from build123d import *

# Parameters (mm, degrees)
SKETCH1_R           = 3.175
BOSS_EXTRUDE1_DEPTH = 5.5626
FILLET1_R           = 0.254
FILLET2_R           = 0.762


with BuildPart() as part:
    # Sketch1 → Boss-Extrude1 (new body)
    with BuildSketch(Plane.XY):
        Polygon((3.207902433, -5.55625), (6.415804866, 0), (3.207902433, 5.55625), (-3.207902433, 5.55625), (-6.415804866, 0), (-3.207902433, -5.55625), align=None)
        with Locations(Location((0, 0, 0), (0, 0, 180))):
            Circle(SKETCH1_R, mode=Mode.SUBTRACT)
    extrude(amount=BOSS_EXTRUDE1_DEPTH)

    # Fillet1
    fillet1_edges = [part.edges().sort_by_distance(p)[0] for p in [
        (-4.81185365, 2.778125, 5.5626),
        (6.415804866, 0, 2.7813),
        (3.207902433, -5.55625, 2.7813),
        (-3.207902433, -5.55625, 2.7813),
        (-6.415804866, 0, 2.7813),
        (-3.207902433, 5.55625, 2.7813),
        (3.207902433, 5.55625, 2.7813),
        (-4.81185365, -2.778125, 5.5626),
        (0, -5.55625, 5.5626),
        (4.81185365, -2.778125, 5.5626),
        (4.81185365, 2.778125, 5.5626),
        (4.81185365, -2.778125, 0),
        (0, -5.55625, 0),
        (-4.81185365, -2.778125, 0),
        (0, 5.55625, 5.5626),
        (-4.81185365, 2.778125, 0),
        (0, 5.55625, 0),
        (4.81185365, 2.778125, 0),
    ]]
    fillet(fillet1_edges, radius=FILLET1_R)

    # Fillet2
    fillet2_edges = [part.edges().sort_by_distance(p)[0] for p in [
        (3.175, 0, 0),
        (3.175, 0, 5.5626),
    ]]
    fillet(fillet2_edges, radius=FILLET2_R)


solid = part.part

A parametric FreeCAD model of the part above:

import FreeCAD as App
import Part
import Sketcher
Q = App.Units.Quantity


def edges_at(feature, points):
    """Names of the edges that pass closest to the given points."""
    edges = feature.Shape.Edges
    near = lambda p: min(range(len(edges)), key=lambda i: edges[i].distToShape(Part.Vertex(*p))[0])
    return sorted({f"Edge{near(p) + 1}" for p in points})

doc = App.newDocument("Part")
body = doc.addObject("PartDesign::Body", "Body")

# Sketch on XY plane
sketch1 = doc.addObject("Sketcher::SketchObject", "Sketch")
body.addObject(sketch1)
sketch1.AttachmentSupport = (doc.XY_Plane, [""])
sketch1.MapMode = "FlatFace"
sketch1.addGeometry(Part.LineSegment(App.Vector(3.207902, -5.55625, 0), App.Vector(6.415805, 0, 0)), False)
sketch1.addGeometry(Part.LineSegment(App.Vector(6.415805, 0, 0), App.Vector(3.207902, 5.55625, 0)), False)
sketch1.addGeometry(Part.LineSegment(App.Vector(3.207902, 5.55625, 0), App.Vector(-3.207902, 5.55625, 0)), False)
sketch1.addGeometry(Part.LineSegment(App.Vector(-3.207902, 5.55625, 0), App.Vector(-6.415805, 0, 0)), False)
sketch1.addGeometry(Part.LineSegment(App.Vector(-6.415805, 0, 0), App.Vector(-3.207902, -5.55625, 0)), False)
sketch1.addGeometry(Part.LineSegment(App.Vector(-3.207902, -5.55625, 0), App.Vector(3.207902, -5.55625, 0)), False)
sketch1.addGeometry(Part.Circle(App.Vector(0, 0, 0), App.Vector(0, 0, 1), 3.175), False)
sketch1.addConstraint(Sketcher.Constraint("Coincident", 0, 2, 1, 1))
sketch1.addConstraint(Sketcher.Constraint("Coincident", 1, 2, 2, 1))
sketch1.addConstraint(Sketcher.Constraint("Coincident", 2, 2, 3, 1))
sketch1.addConstraint(Sketcher.Constraint("Coincident", 3, 2, 4, 1))
sketch1.addConstraint(Sketcher.Constraint("Coincident", 4, 2, 5, 1))
sketch1.addConstraint(Sketcher.Constraint("Coincident", 5, 2, 0, 1))
sketch1.addConstraint(Sketcher.Constraint("Horizontal", 2))
sketch1.addConstraint(Sketcher.Constraint("Horizontal", 5))
sketch1.addConstraint(Sketcher.Constraint("Coincident", 6, 3, -1, 1))
sketch1.addConstraint(Sketcher.Constraint("Symmetric", 0, 2, 3, 2, -1, 1))
sketch1.addConstraint(Sketcher.Constraint("Symmetric", 1, 2, 4, 2, -1, 1))
sketch1.addConstraint(Sketcher.Constraint("PointOnObject", 0, 2, -1))
sketch1.addConstraint(Sketcher.Constraint("Parallel", 0, 3))
sketch1.addConstraint(Sketcher.Constraint("Vertical", 2, 2, 4, 2))
sketch1.addConstraint(Sketcher.Constraint("Diameter", 6, Q("0.25 in")))
sketch1.addConstraint(Sketcher.Constraint("Angle", 0, Q("60 deg")))
sketch1.addConstraint(Sketcher.Constraint("DistanceY", -1, 1, 1, 2, Q("0.21875 in")))
sketch1.addConstraint(Sketcher.Constraint("DistanceX", 2, 2, 2, 1, Q("6.415805 mm")))
pad1 = doc.addObject("PartDesign::Pad", "Pad")
body.addObject(pad1)
pad1.Profile = sketch1
pad1.Length = Q("0.219 in")
doc.recompute()

fillet = doc.addObject("PartDesign::Fillet", "Fillet")
body.addObject(fillet)
fillet.Base = (pad1, edges_at(pad1, [
    (-4.812, 2.778, 5.563),
    (6.416, 0, 2.781),
    (3.208, -5.556, 2.781),
    (-3.208, -5.556, 2.781),
    (-6.416, 0, 2.781),
    (-3.208, 5.556, 2.781),
    (3.208, 5.556, 2.781),
    (-4.812, -2.778, 5.563),
    (0, -5.556, 5.563),
    (4.812, -2.778, 5.563),
    (4.812, 2.778, 5.563),
    (4.812, -2.778, 0),
    (0, -5.556, 0),
    (-4.812, -2.778, 0),
    (0, 5.556, 5.563),
    (-4.812, 2.778, 0),
    (0, 5.556, 0),
    (4.812, 2.778, 0),
]))
fillet.Radius = Q("0.01 in")
doc.recompute()

fillet2 = doc.addObject("PartDesign::Fillet", "Fillet001")
body.addObject(fillet2)
fillet2.Base = (fillet, edges_at(fillet, [(3.175, 0, 0), (3.175, 0, 5.563)]))
fillet2.Radius = Q("0.03 in")

doc.recompute()
